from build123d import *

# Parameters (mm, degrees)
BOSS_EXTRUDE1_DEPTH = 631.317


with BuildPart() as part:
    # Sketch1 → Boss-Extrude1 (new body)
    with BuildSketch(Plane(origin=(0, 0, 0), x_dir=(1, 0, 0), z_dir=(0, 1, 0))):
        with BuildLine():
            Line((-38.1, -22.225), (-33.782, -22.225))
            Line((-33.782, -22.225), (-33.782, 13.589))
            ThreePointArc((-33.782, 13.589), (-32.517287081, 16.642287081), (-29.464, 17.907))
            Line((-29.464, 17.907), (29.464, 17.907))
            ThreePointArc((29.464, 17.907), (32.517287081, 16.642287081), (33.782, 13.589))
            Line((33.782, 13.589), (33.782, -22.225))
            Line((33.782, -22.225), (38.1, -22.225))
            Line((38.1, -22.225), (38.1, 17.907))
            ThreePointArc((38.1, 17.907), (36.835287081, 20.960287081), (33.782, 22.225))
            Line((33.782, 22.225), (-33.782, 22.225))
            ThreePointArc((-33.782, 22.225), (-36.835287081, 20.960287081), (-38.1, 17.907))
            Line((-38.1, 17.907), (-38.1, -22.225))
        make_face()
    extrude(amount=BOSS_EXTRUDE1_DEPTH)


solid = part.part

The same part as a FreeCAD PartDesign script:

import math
import FreeCAD as App
import Part
import Sketcher
Q = App.Units.Quantity

doc = App.newDocument("Part")
body = doc.addObject("PartDesign::Body", "Body")

# Sketch on XZ plane
sketch1 = body.newObject("Sketcher::SketchObject", "Sketch")
sketch1.AttachmentSupport = (doc.getObject("XZ_Plane"), [""])
sketch1.MapMode = "FlatFace"
sketch1.addGeometry([
    Part.LineSegment(App.Vector(-38.1, 22.2, 0), App.Vector(-33.8, 22.2, 0)),  # 0
    Part.LineSegment(App.Vector(-33.8, 22.2, 0), App.Vector(-33.8, -13.6, 0)),  # 1
    Part.ArcOfCircle(Part.Circle(App.Vector(-29.5, -13.6, 0), App.Vector(0, 0, 1), 4.3), math.radians(-180), math.radians(-90)),  # 2
    Part.LineSegment(App.Vector(-29.5, -17.9, 0), App.Vector(29.5, -17.9, 0)),  # 3
    Part.ArcOfCircle(Part.Circle(App.Vector(29.5, -13.6, 0), App.Vector(0, 0, 1), 4.3), math.radians(-90), math.radians(0)),  # 4
    Part.LineSegment(App.Vector(33.8, -13.6, 0), App.Vector(33.8, 22.2, 0)),  # 5
    Part.LineSegment(App.Vector(33.8, 22.2, 0), App.Vector(38.1, 22.2, 0)),  # 6
    Part.LineSegment(App.Vector(38.1, 22.2, 0), App.Vector(38.1, -17.9, 0)),  # 7
    Part.ArcOfCircle(Part.Circle(App.Vector(33.8, -17.9, 0), App.Vector(0, 0, 1), 4.3), math.radians(-90), math.radians(0)),  # 8
    Part.LineSegment(App.Vector(33.8, -22.2, 0), App.Vector(-33.8, -22.2, 0)),  # 9
    Part.ArcOfCircle(Part.Circle(App.Vector(-33.8, -17.9, 0), App.Vector(0, 0, 1), 4.3), math.radians(-180), math.radians(-90)),  # 10
    Part.LineSegment(App.Vector(-38.1, -17.9, 0), App.Vector(-38.1, 22.2, 0)),  # 11
], False)
sketch1.addConstraint([
    Sketcher.Constraint("Coincident", 0, 2, 1, 1),
    Sketcher.Constraint("Tangent", 1, 2, 2, 1),
    Sketcher.Constraint("Tangent", 2, 2, 3, 1),
    Sketcher.Constraint("Tangent", 3, 2, 4, 1),
    Sketcher.Constraint("Tangent", 4, 2, 5, 1),
    Sketcher.Constraint("Coincident", 5, 2, 6, 1),
    Sketcher.Constraint("Coincident", 6, 2, 7, 1),
    Sketcher.Constraint("Tangent", 7, 2, 8, 2),
    Sketcher.Constraint("Tangent", 8, 1, 9, 1),
    Sketcher.Constraint("Tangent", 9, 2, 10, 2),
    Sketcher.Constraint("Tangent", 10, 1, 11, 1),
    Sketcher.Constraint("Coincident", 11, 2, 0, 1),
    Sketcher.Constraint("Horizontal", 0),
    Sketcher.Constraint("Vertical", 1),
    Sketcher.Constraint("Horizontal", 3),
    Sketcher.Constraint("Vertical", 5),
    Sketcher.Constraint("Horizontal", 6),
    Sketcher.Constraint("Vertical", 7),
    Sketcher.Constraint("Horizontal", 9),
    Sketcher.Constraint("Vertical", 11),
    Sketcher.Constraint("Equal", 2, 4),
    Sketcher.Constraint("Equal", 4, 8),
    Sketcher.Constraint("Equal", 8, 10),
    Sketcher.Constraint("Symmetric", 0, 2, 8, 1, -1, 1),
    Sketcher.Constraint("Symmetric", 5, 2, 9, 2, -1, 1),
    Sketcher.Constraint("Horizontal", 10, 3, 2, 2),
    Sketcher.Constraint("Vertical", 10, 3, 0, 2),
    Sketcher.Constraint("Radius", 2, Q("0.17 in")),
    Sketcher.Constraint("DistanceX", 3, 1, 3, 2, Q("2.32 in")),
    Sketcher.Constraint("DistanceY", 1, 2, 1, 1, Q("1.41 in")),
])
pad1 = body.newObject("PartDesign::Pad", "Pad")
pad1.Profile = sketch1
pad1.Length = Q("24.855 in")
pad1.Reversed = True

doc.recompute()
